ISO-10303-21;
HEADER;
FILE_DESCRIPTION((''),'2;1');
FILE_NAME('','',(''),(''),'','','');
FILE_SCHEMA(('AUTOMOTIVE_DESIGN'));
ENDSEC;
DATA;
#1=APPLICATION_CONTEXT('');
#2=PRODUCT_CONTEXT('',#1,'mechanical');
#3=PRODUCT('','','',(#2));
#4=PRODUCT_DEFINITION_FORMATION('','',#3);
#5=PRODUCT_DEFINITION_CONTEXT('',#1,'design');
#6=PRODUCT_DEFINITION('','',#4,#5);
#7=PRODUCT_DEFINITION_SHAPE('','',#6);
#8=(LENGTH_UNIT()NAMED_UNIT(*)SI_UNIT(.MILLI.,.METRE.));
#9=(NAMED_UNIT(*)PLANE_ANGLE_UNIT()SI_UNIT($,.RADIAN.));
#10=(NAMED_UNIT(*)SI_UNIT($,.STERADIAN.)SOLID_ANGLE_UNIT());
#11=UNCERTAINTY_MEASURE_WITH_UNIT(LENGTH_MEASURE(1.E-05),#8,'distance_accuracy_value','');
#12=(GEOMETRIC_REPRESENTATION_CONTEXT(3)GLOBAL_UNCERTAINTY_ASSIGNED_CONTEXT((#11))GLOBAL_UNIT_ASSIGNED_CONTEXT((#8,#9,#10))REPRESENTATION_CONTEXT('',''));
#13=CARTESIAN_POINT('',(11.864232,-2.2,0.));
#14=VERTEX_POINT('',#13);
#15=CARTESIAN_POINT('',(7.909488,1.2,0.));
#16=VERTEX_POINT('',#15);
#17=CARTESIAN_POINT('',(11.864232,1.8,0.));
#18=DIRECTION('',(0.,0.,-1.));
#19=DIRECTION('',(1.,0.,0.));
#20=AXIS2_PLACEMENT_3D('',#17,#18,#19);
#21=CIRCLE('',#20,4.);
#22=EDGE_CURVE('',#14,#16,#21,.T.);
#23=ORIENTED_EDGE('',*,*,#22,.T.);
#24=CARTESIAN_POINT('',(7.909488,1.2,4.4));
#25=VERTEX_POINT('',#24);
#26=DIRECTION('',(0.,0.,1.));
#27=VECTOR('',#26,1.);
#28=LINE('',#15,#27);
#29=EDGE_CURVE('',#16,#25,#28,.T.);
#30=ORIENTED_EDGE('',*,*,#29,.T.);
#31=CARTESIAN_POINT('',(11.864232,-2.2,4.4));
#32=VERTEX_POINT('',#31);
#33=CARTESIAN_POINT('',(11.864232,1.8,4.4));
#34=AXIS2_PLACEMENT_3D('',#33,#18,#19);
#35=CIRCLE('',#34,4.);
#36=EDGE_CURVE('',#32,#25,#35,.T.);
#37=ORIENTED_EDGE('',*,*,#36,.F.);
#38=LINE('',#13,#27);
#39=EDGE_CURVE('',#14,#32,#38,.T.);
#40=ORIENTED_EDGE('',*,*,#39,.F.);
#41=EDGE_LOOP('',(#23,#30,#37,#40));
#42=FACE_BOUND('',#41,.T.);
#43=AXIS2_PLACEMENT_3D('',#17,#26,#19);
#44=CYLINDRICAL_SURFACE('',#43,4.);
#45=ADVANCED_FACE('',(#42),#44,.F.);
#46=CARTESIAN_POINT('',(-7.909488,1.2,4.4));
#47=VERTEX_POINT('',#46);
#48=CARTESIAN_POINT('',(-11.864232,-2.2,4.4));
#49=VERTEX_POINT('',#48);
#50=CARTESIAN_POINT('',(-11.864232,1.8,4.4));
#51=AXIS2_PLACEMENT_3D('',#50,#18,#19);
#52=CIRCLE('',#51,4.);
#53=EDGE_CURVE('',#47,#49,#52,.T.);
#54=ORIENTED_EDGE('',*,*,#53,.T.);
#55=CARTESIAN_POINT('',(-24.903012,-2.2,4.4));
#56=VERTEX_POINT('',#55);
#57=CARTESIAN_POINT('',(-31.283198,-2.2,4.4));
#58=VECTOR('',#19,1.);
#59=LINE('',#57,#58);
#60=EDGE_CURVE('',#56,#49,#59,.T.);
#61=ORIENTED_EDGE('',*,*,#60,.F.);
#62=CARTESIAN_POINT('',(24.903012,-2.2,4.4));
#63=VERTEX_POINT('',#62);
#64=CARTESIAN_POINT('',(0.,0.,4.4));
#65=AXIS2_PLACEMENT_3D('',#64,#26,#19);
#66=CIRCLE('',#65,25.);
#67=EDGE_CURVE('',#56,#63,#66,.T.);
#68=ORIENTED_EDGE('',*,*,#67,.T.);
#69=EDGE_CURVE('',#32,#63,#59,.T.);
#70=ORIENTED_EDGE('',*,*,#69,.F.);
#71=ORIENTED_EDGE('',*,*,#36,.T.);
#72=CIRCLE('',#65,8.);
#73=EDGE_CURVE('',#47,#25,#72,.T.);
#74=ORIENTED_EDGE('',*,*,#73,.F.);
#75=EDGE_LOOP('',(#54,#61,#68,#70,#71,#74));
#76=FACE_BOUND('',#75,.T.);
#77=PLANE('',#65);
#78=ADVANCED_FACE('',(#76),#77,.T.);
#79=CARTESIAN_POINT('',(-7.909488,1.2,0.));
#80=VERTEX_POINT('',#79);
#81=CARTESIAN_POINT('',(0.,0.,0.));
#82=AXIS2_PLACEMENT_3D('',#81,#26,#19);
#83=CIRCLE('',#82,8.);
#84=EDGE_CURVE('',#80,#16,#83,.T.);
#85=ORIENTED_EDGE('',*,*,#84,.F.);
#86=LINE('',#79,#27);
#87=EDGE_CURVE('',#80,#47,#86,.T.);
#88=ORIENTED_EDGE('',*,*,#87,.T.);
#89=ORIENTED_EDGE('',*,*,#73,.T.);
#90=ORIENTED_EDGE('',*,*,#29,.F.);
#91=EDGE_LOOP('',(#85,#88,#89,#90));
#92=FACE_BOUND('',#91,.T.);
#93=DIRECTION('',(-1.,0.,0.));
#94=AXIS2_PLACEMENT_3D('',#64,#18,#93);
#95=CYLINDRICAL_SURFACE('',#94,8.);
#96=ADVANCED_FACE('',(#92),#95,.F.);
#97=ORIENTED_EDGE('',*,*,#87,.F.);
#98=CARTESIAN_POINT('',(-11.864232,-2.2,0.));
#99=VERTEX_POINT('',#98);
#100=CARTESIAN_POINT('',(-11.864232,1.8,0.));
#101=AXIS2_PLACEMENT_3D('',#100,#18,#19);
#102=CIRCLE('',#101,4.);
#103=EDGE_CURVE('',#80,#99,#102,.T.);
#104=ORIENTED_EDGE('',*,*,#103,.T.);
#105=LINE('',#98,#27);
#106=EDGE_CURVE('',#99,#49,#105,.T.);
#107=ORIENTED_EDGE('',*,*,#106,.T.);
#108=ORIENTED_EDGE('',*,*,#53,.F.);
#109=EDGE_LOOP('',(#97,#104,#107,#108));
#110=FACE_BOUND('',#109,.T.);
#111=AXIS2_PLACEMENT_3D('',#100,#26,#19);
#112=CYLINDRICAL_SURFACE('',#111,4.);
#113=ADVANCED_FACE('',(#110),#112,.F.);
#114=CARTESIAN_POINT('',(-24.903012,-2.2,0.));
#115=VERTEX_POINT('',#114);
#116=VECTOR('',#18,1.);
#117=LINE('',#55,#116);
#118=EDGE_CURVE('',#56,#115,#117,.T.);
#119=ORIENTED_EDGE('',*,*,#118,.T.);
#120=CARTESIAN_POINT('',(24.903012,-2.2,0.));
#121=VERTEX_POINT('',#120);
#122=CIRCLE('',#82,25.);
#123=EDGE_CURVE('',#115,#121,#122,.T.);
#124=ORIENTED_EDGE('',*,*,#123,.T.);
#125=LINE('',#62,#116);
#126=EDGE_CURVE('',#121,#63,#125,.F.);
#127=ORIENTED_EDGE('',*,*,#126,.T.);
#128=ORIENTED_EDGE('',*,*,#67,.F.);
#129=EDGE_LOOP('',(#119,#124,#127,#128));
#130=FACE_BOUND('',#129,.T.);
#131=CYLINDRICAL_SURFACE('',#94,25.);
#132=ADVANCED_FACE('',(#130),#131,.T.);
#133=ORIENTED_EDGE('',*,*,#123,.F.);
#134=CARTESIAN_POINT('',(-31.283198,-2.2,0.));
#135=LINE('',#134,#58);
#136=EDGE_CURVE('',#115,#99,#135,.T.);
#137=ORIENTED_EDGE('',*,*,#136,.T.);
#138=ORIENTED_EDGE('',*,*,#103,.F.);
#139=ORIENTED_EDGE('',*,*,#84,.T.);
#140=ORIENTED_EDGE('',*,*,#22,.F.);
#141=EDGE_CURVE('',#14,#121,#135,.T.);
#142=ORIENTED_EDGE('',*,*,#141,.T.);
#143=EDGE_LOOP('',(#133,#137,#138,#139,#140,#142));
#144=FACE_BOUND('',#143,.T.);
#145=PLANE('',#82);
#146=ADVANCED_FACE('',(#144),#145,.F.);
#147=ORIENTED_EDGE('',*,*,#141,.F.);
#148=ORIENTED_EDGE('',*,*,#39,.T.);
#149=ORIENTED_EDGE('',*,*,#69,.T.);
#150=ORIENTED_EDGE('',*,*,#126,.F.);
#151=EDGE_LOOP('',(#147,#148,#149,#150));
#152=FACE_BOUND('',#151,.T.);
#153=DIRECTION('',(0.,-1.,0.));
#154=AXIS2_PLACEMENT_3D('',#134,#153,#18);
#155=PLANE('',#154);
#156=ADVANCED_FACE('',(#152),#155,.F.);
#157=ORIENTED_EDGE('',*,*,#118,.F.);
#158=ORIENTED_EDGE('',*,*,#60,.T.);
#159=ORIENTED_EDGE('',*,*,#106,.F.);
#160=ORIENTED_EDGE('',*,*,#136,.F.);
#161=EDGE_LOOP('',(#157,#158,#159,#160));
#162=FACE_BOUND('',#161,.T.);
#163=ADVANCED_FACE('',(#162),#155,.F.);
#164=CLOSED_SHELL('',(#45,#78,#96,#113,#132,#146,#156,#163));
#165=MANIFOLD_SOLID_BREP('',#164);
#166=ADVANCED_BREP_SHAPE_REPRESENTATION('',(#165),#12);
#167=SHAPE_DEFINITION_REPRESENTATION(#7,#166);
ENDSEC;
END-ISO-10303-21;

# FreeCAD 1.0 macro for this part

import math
import FreeCAD as App
import Part
import Sketcher

V = App.Vector
Q = App.Units.Quantity


def add_polygon(sketch, points):
    """Adds a closed chain of lines whose ends are joined by coincident constraints."""
    first, n = sketch.GeometryCount, len(points)
    for a, b in zip(points, points[1:] + points[:1]):
        sketch.addGeometry(Part.LineSegment(App.Vector(*a, 0), App.Vector(*b, 0)), False)
    for i in range(n):
        sketch.addConstraint(Sketcher.Constraint("Coincident", first + i, 2, first + (i + 1) % n, 1))

doc = App.newDocument("Part")
params = doc.addObject("Spreadsheet::Sheet", "Params")
for row, (alias, value) in enumerate([
    ("sketch1_diameter", "50 mm"),
    ("sketch1_diameter2", "16 mm"),
    ("pad1_length", "4.4 mm"),
    ("sketch3_radius", "4 mm"),
    ("sketch3_radius2", "8 mm"),
    ("pad2_length", "4.4 mm"),
], start=1):
    params.set(f"A{row}", alias)
    params.set(f"B{row}", "=" + value)
    params.setAlias(f"B{row}", alias)

body = doc.addObject("PartDesign::Body", "Body")

# Sketch on XY plane
sketch1 = body.newObject("Sketcher::SketchObject", "Sketch")
sketch1.AttachmentSupport = (doc.getObject("XY_Plane"), [""])
sketch1.MapMode = "FlatFace"
sketch1.addGeometry(Part.Circle(V(0, 0, 0), V(0, 0, 1), 25), False)
sketch1.addGeometry(Part.Circle(V(0, 0, 0), V(0, 0, 1), 8), False)
sketch1.addConstraint(Sketcher.Constraint("Coincident", 0, 3, -1, 1))
sketch1.addConstraint(Sketcher.Constraint("Coincident", 1, 3, -1, 1))
sketch1.addConstraint(Sketcher.Constraint("Diameter", 0, Q("50 mm")))
sketch1.addConstraint(Sketcher.Constraint("Diameter", 1, Q("16 mm")))
sketch1.setExpression("Constraints[2]", "Params.sketch1_diameter")
sketch1.setExpression("Constraints[3]", "Params.sketch1_diameter2")
pad1 = body.newObject("PartDesign::Pad", "Pad")
pad1.Profile = sketch1
pad1.setExpression("Length", "Params.pad1_length")

# Sketch on XY plane
sketch2 = body.newObject("Sketcher::SketchObject", "Sketch001")
sketch2.AttachmentSupport = (doc.getObject("XY_Plane"), [""])
sketch2.MapMode = "FlatFace"
sketch2.AttachmentOffset = App.Placement(V(0, 0, 4.4), App.Rotation())
add_polygon(sketch2, [(-31, -2), (32, -2), (32, 33), (-32, 33)])  # lines 0-3
sketch2.addConstraint(Sketcher.Constraint("Horizontal", 0))
sketch2.addConstraint(Sketcher.Constraint("Vertical", 1))
sketch2.addConstraint(Sketcher.Constraint("Horizontal", 2))
sketch2.addConstraint(Sketcher.Constraint("DistanceY", 0, 2, -1, 1, Q("2.2 mm")))
sketch2.addConstraint(Sketcher.Constraint("DistanceX", 3, 2, -1, 1, Q("31.283198 mm")))
sketch2.addConstraint(Sketcher.Constraint("DistanceX", 0, 1, 0, 2, Q("63.782754 mm")))
sketch2.addConstraint(Sketcher.Constraint("DistanceX", 2, 2, 2, 1, Q("64.238888 mm")))
sketch2.addConstraint(Sketcher.Constraint("DistanceY", 1, 1, 1, 2, Q("34.818237 mm")))
pocket1 = body.newObject("PartDesign::Pocket", "Pocket")
pocket1.Profile = sketch2
pocket1.Type = "ThroughAll"

# Sketch on XY plane
sketch3 = body.newObject("Sketcher::SketchObject", "Sketch002")
sketch3.AttachmentSupport = (doc.getObject("XY_Plane"), [""])
sketch3.MapMode = "FlatFace"
sketch3.AttachmentOffset = App.Placement(V(0, 0, 4.4), App.Rotation())
sketch3.addGeometry(Part.LineSegment(V(7.7, -2.2, 0), V(11.9, -2.2, 0)), False)
sketch3.addGeometry(Part.ArcOfCircle(Part.Circle(V(11.9, 1.8, 0), V(0, 0, 1), 4), math.radians(-171), math.radians(-90)), False)
sketch3.addGeometry(Part.ArcOfCircle(Part.Circle(V(0, 0, 0), V(0, 0, 1), 8), math.radians(-16), math.radians(9)), False)
sketch3.addGeometry(Part.LineSegment(V(-11.9, -2.2, 0), V(-7.7, -2.2, 0)), False)
sketch3.addGeometry(Part.ArcOfCircle(Part.Circle(V(0, 0, 0), V(0, 0, 1), 8), math.radians(171), math.radians(196)), False)
sketch3.addGeometry(Part.ArcOfCircle(Part.Circle(V(-11.9, 1.8, 0), V(0, 0, 1), 4), math.radians(-90), math.radians(-9)), False)
sketch3.addConstraint(Sketcher.Constraint("Tangent", 0, 2, 1, 2))
sketch3.addConstraint(Sketcher.Constraint("Tangent", 1, 1, 2, 2))
sketch3.addConstraint(Sketcher.Constraint("Coincident", 2, 1, 0, 1))
sketch3.addConstraint(Sketcher.Constraint("Coincident", 3, 2, 4, 2))
sketch3.addConstraint(Sketcher.Constraint("Tangent", 4, 1, 5, 2))
sketch3.addConstraint(Sketcher.Constraint("Tangent", 5, 1, 3, 1))
sketch3.addConstraint(Sketcher.Constraint("Horizontal", 0))
sketch3.addConstraint(Sketcher.Constraint("Horizontal", 3))
sketch3.addConstraint(Sketcher.Constraint("Coincident", 2, 3, -1, 1))
sketch3.addConstraint(Sketcher.Constraint("Coincident", 4, 3, -1, 1))
sketch3.addConstraint(Sketcher.Constraint("Equal", 2, 4))
sketch3.addConstraint(Sketcher.Constraint("Equal", 1, 5))
sketch3.addConstraint(Sketcher.Constraint("Horizontal", 1, 3, 5, 3))
sketch3.addConstraint(Sketcher.Constraint("Radius", 1, Q("4 mm")))
sketch3.addConstraint(Sketcher.Constraint("Radius", 2, Q("8 mm")))
sketch3.addConstraint(Sketcher.Constraint("DistanceY", -1, 1, 1, 3, Q("1.8 mm")))
sketch3.setExpression("Constraints[13]", "Params.sketch3_radius")
sketch3.setExpression("Constraints[14]", "Params.sketch3_radius2")
pad2 = body.newObject("PartDesign::Pad", "Pad001")
pad2.Profile = sketch3
pad2.setExpression("Length", "Params.pad2_length")
pad2.Reversed = True

doc.recompute()
